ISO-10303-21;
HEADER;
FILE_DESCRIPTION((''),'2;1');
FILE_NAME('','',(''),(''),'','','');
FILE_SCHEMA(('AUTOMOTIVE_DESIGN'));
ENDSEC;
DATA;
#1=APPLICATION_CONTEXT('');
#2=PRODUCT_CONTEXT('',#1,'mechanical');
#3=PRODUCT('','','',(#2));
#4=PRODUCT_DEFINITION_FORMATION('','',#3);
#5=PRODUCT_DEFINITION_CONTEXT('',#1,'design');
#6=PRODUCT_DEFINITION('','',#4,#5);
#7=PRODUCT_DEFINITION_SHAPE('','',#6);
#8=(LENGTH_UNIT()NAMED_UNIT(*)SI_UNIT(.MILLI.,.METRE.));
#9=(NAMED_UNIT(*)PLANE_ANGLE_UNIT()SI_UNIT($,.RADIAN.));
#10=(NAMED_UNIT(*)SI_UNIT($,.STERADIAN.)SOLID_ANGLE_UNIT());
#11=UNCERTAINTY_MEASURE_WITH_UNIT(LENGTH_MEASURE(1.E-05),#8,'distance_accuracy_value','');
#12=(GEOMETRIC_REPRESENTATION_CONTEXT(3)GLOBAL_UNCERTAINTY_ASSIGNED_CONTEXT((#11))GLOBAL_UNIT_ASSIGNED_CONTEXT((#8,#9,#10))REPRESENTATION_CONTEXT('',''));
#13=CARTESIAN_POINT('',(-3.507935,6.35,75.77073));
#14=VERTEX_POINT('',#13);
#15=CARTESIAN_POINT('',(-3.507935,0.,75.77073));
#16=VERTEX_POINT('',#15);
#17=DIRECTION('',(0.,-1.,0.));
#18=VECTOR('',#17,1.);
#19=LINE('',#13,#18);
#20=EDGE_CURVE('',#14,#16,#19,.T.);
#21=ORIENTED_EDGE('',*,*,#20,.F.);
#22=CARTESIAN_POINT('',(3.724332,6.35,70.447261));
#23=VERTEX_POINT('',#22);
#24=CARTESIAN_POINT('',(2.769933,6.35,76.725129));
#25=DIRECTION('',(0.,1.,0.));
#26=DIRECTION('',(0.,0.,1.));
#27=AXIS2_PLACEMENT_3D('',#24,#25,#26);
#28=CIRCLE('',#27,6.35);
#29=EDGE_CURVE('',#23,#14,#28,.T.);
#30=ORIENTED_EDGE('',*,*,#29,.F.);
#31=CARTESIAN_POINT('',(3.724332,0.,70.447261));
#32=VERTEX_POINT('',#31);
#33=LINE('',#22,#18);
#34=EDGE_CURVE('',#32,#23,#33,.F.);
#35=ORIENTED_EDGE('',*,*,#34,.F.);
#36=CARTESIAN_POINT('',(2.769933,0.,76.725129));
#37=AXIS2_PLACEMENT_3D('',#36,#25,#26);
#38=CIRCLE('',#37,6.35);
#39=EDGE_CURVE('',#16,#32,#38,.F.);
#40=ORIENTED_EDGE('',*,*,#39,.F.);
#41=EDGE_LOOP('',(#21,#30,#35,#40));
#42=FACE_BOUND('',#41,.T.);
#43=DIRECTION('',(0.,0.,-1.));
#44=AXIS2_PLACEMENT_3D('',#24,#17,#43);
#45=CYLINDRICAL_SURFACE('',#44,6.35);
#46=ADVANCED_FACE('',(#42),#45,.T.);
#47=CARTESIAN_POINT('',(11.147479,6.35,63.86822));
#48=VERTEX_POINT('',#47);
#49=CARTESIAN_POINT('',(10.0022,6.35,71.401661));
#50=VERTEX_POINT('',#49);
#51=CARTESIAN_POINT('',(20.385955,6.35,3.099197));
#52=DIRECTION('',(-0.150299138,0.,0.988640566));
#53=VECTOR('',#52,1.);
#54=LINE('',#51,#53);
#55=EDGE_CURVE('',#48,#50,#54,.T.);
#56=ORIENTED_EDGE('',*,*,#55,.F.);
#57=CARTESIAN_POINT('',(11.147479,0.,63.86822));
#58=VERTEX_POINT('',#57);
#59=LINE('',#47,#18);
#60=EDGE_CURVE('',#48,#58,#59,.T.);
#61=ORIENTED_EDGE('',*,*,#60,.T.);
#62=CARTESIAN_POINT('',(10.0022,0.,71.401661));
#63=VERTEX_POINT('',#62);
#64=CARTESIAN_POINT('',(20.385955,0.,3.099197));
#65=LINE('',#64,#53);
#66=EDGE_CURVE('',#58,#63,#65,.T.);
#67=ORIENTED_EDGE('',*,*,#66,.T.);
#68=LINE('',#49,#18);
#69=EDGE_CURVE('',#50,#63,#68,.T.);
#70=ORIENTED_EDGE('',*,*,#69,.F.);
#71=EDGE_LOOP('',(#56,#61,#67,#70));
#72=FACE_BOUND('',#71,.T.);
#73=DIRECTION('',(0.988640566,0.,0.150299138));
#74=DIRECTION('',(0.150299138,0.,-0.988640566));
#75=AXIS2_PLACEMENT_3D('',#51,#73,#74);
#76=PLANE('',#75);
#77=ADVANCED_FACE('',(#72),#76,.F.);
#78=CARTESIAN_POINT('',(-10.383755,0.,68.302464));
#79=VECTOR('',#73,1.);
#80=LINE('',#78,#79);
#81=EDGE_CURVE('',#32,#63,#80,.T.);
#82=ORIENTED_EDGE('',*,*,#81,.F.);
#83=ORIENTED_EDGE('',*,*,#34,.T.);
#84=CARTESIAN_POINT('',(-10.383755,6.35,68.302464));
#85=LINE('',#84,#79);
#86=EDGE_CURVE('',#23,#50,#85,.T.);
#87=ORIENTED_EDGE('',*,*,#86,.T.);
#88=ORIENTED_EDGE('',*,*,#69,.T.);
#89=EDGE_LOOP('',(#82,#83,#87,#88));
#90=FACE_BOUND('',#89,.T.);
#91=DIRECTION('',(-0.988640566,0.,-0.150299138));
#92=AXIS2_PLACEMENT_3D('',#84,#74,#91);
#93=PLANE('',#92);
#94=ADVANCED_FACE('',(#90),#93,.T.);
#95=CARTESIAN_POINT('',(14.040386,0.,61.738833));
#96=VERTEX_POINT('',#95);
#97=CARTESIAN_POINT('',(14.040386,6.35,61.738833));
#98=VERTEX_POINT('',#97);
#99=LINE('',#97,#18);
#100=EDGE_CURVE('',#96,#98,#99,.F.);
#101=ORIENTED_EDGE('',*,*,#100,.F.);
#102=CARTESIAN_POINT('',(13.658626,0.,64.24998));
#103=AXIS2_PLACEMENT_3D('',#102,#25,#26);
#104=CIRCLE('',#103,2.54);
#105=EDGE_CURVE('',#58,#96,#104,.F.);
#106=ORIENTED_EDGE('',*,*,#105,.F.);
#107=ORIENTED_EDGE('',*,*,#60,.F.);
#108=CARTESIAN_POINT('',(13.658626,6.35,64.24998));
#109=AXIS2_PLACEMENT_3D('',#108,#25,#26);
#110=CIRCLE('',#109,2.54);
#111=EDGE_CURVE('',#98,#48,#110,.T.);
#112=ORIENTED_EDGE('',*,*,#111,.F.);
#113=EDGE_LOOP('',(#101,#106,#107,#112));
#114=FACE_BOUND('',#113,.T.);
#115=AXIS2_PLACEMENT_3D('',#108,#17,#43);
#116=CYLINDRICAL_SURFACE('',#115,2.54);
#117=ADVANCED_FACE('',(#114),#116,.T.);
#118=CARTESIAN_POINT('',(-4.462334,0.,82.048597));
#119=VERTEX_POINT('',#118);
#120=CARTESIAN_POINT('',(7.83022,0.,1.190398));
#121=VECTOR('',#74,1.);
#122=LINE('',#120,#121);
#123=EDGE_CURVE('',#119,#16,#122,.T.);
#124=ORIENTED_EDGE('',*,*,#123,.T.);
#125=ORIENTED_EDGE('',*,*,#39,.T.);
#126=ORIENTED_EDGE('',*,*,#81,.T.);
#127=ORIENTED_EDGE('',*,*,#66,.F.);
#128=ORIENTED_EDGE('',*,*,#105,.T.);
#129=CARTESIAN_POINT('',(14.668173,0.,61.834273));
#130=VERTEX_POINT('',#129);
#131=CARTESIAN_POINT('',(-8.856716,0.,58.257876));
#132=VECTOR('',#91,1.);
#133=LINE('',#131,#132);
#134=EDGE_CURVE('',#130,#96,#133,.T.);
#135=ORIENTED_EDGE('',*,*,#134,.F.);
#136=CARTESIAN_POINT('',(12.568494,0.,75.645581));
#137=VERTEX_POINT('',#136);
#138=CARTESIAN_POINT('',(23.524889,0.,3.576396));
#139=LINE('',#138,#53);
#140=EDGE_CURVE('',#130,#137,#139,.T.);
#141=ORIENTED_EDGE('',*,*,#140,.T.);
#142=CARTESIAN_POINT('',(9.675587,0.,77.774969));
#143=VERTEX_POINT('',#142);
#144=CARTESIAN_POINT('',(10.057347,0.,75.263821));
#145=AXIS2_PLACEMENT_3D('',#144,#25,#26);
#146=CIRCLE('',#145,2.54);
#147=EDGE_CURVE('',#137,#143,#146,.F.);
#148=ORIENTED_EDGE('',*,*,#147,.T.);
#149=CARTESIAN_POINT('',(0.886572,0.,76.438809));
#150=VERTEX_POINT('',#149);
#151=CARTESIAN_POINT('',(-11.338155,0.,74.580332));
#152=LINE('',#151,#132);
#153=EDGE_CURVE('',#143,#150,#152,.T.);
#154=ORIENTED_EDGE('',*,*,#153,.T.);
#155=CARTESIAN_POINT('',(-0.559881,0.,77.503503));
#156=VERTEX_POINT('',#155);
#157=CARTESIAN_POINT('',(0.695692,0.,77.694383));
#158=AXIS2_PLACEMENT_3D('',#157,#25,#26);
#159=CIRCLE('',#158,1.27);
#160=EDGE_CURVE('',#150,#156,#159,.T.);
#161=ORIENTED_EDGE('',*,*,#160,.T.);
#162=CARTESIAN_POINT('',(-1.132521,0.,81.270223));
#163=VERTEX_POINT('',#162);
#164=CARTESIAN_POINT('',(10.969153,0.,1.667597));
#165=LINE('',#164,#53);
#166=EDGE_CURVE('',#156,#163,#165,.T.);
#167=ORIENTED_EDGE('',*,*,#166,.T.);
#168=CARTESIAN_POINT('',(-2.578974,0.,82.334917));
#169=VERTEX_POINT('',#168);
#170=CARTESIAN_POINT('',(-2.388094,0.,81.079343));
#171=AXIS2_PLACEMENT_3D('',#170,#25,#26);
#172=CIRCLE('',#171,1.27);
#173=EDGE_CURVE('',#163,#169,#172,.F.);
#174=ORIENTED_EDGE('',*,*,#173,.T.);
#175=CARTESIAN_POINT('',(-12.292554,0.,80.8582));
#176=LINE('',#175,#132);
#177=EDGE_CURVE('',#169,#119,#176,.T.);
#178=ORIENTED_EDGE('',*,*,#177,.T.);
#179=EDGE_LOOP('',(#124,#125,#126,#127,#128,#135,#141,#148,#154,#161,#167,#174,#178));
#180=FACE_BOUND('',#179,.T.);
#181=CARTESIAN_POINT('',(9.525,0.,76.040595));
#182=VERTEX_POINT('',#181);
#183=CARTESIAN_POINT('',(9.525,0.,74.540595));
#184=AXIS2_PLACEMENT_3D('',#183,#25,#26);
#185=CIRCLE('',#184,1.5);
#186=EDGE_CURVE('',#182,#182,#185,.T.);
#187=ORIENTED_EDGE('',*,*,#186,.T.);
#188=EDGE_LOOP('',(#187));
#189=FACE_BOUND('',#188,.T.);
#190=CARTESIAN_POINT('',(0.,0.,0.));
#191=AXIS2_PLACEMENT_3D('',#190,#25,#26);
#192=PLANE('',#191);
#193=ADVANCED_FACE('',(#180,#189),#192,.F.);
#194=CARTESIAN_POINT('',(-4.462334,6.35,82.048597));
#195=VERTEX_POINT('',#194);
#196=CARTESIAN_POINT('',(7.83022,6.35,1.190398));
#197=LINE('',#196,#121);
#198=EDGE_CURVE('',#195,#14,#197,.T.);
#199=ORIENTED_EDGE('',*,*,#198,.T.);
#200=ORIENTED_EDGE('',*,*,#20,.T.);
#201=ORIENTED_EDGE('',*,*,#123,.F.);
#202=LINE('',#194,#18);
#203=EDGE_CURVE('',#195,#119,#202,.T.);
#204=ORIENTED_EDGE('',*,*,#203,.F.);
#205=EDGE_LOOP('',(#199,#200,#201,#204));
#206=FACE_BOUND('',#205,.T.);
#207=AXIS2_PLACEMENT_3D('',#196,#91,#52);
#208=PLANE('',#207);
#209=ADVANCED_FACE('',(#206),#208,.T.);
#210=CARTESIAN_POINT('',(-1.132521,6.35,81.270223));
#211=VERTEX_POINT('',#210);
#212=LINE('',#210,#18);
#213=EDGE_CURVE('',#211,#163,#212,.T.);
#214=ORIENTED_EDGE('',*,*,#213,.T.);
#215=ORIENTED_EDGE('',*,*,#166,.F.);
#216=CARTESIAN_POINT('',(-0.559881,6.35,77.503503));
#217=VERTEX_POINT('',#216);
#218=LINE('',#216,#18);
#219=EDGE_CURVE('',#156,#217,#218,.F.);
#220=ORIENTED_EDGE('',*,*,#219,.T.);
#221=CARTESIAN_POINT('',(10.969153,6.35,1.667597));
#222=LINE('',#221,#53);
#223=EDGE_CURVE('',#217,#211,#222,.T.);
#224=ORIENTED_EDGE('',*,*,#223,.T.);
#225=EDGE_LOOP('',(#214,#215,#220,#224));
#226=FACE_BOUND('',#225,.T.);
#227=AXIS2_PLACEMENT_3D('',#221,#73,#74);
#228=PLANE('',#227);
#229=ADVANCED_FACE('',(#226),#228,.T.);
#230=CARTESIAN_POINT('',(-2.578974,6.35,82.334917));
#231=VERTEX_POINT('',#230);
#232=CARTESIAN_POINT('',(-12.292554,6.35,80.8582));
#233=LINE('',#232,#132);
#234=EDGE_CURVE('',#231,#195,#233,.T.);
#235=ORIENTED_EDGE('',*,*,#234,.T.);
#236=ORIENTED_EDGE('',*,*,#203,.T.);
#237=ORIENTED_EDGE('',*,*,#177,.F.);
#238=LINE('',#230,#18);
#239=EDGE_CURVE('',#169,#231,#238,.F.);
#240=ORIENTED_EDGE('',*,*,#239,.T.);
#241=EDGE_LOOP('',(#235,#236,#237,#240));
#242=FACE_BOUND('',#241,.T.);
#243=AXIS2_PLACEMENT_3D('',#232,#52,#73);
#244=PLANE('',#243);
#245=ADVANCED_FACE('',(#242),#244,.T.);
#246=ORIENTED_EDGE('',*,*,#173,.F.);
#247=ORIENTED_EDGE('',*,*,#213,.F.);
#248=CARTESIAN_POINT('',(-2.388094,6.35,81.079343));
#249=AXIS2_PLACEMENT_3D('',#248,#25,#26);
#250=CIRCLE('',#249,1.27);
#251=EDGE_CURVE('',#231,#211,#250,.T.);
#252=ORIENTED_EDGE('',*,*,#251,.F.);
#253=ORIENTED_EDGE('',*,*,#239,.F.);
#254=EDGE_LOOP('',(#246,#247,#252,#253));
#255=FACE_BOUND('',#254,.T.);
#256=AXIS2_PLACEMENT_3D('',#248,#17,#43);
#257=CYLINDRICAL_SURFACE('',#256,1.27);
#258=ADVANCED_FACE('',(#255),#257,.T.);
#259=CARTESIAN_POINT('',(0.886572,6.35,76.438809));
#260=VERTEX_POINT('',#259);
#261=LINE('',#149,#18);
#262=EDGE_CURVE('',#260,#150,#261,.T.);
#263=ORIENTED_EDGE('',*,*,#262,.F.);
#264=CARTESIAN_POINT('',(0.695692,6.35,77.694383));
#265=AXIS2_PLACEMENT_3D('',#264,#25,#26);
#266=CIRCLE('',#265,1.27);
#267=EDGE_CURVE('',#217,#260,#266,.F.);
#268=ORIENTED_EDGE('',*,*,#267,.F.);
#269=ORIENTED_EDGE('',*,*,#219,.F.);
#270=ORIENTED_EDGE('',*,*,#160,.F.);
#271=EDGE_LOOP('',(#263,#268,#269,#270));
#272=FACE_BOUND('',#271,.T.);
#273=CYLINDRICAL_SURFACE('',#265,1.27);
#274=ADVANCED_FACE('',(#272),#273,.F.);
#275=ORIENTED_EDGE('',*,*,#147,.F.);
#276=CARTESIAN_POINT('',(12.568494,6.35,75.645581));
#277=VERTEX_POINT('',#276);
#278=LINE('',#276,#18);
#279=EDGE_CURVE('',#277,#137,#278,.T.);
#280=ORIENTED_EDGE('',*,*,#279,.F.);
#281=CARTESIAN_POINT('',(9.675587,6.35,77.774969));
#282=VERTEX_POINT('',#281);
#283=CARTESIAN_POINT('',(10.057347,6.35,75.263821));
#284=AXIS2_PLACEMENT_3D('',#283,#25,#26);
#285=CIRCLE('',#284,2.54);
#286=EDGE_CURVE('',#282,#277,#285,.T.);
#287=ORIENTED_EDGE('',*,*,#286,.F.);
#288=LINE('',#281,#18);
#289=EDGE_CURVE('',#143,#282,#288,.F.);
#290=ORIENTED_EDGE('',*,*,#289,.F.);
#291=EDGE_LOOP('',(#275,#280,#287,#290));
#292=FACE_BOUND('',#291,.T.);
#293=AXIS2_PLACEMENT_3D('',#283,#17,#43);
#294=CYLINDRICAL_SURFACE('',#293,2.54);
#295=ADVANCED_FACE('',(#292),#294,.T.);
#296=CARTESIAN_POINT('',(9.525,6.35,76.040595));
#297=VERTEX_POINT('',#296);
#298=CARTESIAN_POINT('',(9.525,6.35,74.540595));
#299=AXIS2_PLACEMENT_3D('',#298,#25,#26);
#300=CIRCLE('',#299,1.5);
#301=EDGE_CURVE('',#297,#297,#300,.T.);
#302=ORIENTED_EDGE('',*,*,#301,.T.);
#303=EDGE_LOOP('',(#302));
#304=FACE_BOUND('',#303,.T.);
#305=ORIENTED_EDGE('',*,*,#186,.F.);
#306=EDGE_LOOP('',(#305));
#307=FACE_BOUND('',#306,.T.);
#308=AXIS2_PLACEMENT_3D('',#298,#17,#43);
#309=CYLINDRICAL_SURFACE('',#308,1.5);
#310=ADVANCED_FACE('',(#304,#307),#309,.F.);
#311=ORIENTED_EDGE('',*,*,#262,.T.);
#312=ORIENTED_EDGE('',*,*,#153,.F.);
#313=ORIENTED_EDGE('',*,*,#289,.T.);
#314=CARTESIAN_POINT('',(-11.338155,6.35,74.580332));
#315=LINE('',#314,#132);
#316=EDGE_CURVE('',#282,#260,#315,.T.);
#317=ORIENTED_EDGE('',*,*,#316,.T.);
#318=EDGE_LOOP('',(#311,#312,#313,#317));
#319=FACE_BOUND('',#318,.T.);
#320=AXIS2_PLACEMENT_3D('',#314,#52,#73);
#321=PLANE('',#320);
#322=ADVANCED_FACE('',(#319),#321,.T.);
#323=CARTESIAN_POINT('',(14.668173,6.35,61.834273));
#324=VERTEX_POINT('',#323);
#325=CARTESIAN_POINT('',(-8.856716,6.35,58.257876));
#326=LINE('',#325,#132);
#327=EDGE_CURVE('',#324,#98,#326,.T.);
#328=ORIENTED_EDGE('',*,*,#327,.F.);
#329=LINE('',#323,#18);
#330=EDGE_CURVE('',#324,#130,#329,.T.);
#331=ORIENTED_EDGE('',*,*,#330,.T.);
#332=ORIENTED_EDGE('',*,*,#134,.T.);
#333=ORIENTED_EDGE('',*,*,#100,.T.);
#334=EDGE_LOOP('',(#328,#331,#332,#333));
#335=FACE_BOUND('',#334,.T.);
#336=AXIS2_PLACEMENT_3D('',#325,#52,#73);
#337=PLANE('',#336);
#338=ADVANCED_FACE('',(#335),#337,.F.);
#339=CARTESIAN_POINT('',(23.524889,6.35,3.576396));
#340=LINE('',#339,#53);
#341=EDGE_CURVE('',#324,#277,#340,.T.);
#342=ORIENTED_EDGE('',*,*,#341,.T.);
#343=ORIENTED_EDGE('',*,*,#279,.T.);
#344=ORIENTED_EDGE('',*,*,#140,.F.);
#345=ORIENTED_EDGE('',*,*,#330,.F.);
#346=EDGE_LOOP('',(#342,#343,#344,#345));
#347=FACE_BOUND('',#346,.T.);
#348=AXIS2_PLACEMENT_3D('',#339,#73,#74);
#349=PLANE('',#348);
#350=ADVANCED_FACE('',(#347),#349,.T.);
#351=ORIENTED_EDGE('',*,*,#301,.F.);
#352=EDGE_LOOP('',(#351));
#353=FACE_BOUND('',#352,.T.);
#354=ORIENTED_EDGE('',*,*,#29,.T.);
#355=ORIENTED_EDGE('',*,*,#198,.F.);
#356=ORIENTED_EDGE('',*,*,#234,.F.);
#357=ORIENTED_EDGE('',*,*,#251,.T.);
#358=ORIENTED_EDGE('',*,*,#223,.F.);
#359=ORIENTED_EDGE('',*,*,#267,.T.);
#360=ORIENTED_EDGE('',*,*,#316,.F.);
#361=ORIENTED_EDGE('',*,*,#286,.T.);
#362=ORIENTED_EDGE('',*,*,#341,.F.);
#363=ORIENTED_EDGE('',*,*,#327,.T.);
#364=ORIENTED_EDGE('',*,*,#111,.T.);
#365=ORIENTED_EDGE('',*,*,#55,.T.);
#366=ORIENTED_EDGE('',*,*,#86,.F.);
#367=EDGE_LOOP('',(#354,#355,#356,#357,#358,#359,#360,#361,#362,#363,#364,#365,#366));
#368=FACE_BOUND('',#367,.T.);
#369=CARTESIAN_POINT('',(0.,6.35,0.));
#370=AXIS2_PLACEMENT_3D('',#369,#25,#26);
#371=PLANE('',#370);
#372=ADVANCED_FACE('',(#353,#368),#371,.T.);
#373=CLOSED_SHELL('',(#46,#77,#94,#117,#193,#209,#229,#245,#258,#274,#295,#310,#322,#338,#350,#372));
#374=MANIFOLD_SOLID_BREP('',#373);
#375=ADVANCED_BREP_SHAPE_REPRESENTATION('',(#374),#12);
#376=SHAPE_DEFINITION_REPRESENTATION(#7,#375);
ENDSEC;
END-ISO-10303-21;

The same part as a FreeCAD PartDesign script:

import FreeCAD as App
import Part
import Sketcher
from FreeCAD import Vector
Q = App.Units.Quantity


def edges_at(feature, points):
    """Names of the edges that pass closest to the given points."""
    edges = feature.Shape.Edges
    near = lambda p: min(range(len(edges)), key=lambda i: edges[i].distToShape(Part.Vertex(*p))[0])
    return sorted({f"Edge{near(p) + 1}" for p in points})


def add_polygon(sketch, points):
    """Adds a closed chain of lines whose ends are joined by coincident constraints."""
    first, n = sketch.GeometryCount, len(points)
    for a, b in zip(points, points[1:] + points[:1]):
        sketch.addGeometry(Part.LineSegment(App.Vector(*a, 0), App.Vector(*b, 0)), False)
    for i in range(n):
        sketch.addConstraint(Sketcher.Constraint("Coincident", first + i, 2, first + (i + 1) % n, 1))

doc = App.newDocument("Part")
body = doc.addObject("PartDesign::Body", "Body")

# Sketch on XZ plane
sketch1 = body.newObject("Sketcher::SketchObject", "Sketch")
sketch1.AttachmentSupport = (doc.getObject("XZ_Plane"), [""])
sketch1.MapMode = "FlatFace"
add_polygon(sketch1, [(-2.6, 69.5), (-4.5, 82), (-1.3, 82.5), (-0.4, 76.2), (12.2, 78.2), (12.7, 75), (14.7, 61.8), (11.5, 61.4), (10, 71.4)])  # lines 0-8
sketch1.addGeometry(Part.Circle(Vector(9.5, 74.5, 0), Vector(0, 0, 1), 1.5), False)  # 9
sketch1.addConstraint(Sketcher.Constraint("Perpendicular", 0, 1))
sketch1.addConstraint(Sketcher.Constraint("Perpendicular", 1, 2))
sketch1.addConstraint(Sketcher.Constraint("Perpendicular", 2, 3))
sketch1.addConstraint(Sketcher.Constraint("Perpendicular", 3, 4))
sketch1.addConstraint(Sketcher.Constraint("Parallel", 4, 5))
sketch1.addConstraint(Sketcher.Constraint("Perpendicular", 5, 6))
sketch1.addConstraint(Sketcher.Constraint("Perpendicular", 6, 7))
sketch1.addConstraint(Sketcher.Constraint("Perpendicular", 7, 8))
sketch1.addConstraint(Sketcher.Constraint("Equal", 0, 3))
sketch1.addConstraint(Sketcher.Constraint("Equal", 1, 4))
sketch1.addConstraint(Sketcher.Constraint("Equal", 4, 6))
sketch1.addConstraint(Sketcher.Constraint("Distance", 0, Q("0.5 in")))
sketch1.addConstraint(Sketcher.Constraint("Distance", 7, Q("0.4 in")))
sketch1.addConstraint(Sketcher.Constraint("Distance", 2, Q("0.25 in")))
sketch1.addConstraint(Sketcher.Constraint("Diameter", 9, Q("3 mm")))
sketch1.addConstraint(Sketcher.Constraint("Distance", 1, Q("0.125 in")))
sketch1.addConstraint(Sketcher.Constraint("DistanceX", -1, 1, 9, 3, Q("0.375 in")))
sketch1.addConstraint(Sketcher.Constraint("DistanceX", 1, 2, -1, 1, Q("1.323401 mm")))
sketch1.addConstraint(Sketcher.Constraint("DistanceX", 2, 2, -1, 1, Q("0.369001 mm")))
sketch1.addConstraint(Sketcher.Constraint("DistanceY", 9, 3, 4, 2, Q("0.4772 mm")))
sketch1.addConstraint(Sketcher.Constraint("DistanceY", -1, 1, 2, 2, Q("76.247929 mm")))
pad1 = body.newObject("PartDesign::Pad", "Pad")
pad1.Profile = sketch1
pad1.Length = Q("0.25 in")
pad1.Reversed = True
doc.recompute()

fillet = body.newObject("PartDesign::Fillet", "Fillet")
fillet.Base = (pad1, edges_at(pad1, [(-0.369, 3.175, 76.248), (-1.323, 3.175, 82.526)]))
fillet.Radius = Q("0.05 in")
doc.recompute()

fillet2 = body.newObject("PartDesign::Fillet", "Fillet001")
fillet2.Base = (fillet, edges_at(fillet, [(11.529, 3.175, 61.357)]))
fillet2.Radius = Q("0.1 in")
doc.recompute()

fillet3 = body.newObject("PartDesign::Fillet", "Fillet002")
fillet3.Base = (fillet2, edges_at(fillet2, [(-2.554, 3.175, 69.493)]))
fillet3.Radius = Q("0.25 in")
doc.recompute()

fillet4 = body.newObject("PartDesign::Fillet", "Fillet003")
fillet4.Base = (fillet3, edges_at(fillet3, [(12.187, 3.175, 78.157)]))
fillet4.Radius = Q("0.1 in")

doc.recompute()
